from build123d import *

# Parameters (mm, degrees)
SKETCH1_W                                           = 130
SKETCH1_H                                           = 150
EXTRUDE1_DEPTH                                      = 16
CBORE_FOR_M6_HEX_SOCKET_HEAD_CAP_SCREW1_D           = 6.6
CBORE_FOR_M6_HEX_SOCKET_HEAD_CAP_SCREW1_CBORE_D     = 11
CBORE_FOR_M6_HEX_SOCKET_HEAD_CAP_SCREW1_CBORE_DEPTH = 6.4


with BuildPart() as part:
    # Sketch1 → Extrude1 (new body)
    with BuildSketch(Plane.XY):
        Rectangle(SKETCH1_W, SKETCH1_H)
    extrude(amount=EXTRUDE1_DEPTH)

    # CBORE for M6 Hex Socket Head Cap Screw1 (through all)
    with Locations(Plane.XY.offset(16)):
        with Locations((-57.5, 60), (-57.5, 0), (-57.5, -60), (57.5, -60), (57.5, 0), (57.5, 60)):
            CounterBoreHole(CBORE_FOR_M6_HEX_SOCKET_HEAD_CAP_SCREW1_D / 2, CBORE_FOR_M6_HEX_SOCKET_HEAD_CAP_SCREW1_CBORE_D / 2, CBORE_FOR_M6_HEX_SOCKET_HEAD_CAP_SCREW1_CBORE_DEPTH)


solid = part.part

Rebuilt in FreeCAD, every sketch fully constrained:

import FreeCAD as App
import Part
import Sketcher

V = App.Vector

doc = App.newDocument("Part")
body = doc.addObject("PartDesign::Body", "Body")

sketch1 = body.newObject("Sketcher::SketchObject", "Sketch")
sketch1.AttachmentSupport = (doc.getObject("XY_Plane"), [""])
sketch1.MapMode = "FlatFace"
sketch1.addGeometry([
    Part.LineSegment(V(-65, 75, 0), V(-65, -75, 0)),
    Part.LineSegment(V(-65, -75, 0), V(65, -75, 0)),
    Part.LineSegment(V(65, -75, 0), V(65, 75, 0)),
    Part.LineSegment(V(65, 75, 0), V(-65, 75, 0)),
], False)
sketch1.addConstraint([
    Sketcher.Constraint("Coincident", 0, 2, 1, 1),
    Sketcher.Constraint("Coincident", 1, 2, 2, 1),
    Sketcher.Constraint("Coincident", 2, 2, 3, 1),
    Sketcher.Constraint("Coincident", 3, 2, 0, 1),
    Sketcher.Constraint("Vertical", 0),
    Sketcher.Constraint("Horizontal", 1),
    Sketcher.Constraint("Vertical", 2),
    Sketcher.Constraint("Horizontal", 3),
    Sketcher.Constraint("Symmetric", 0, 2, 2, 2, -1, 1),
    Sketcher.Constraint("DistanceX", 1, 1, 1, 2, 130.0),
    Sketcher.Constraint("DistanceY", 0, 2, 0, 1, 150.0),
])
pad1 = body.newObject("PartDesign::Pad", "Pad")
pad1.Profile = sketch1
pad1.Length = 16

sketch2 = body.newObject("Sketcher::SketchObject", "Sketch001")
sketch2.AttachmentSupport = (doc.getObject("XY_Plane"), [""])
sketch2.MapMode = "FlatFace"
sketch2.AttachmentOffset = App.Placement(V(0, 0, 16), App.Rotation())
sketch2.addGeometry([
    Part.Circle(V(-57.5, 60, 0), V(0, 0, 1), 3.3),
    Part.Circle(V(-57.5, 0, 0), V(0, 0, 1), 3.3),
    Part.Circle(V(-57.5, -60, 0), V(0, 0, 1), 3.3),
    Part.Circle(V(57.5, -60, 0), V(0, 0, 1), 3.3),
    Part.Circle(V(57.5, 0, 0), V(0, 0, 1), 3.3),
    Part.Circle(V(57.5, 60, 0), V(0, 0, 1), 3.3),
], False)
sketch2.addConstraint([
    Sketcher.Constraint("Equal", 0, 1),
    Sketcher.Constraint("Equal", 1, 2),
    Sketcher.Constraint("Equal", 2, 3),
    Sketcher.Constraint("Equal", 3, 4),
    Sketcher.Constraint("Equal", 4, 5),
    Sketcher.Constraint("Symmetric", 0, 3, 3, 3, -1, 1),
    Sketcher.Constraint("Symmetric", 1, 3, 4, 3, -1, 1),
    Sketcher.Constraint("Symmetric", 2, 3, 5, 3, -1, 1),
    Sketcher.Constraint("Symmetric", 2, 3, 3, 3, -2),
    Sketcher.Constraint("PointOnObject", 1, 3, -1),
    Sketcher.Constraint("Vertical", 0, 3, 1, 3),
    Sketcher.Constraint("Diameter", 0, 6.6),
    Sketcher.Constraint("DistanceY", -1, 1, 0, 3, 60.0),
    Sketcher.Constraint("DistanceX", 2, 3, 3, 3, 115.0),
])
doc.recompute()
hole = body.newObject("PartDesign::Hole", "Hole")
hole.Profile = sketch2
hole.ThreadType = "None"
hole.Diameter = 6.6
hole.DepthType = "ThroughAll"
hole.HoleCutType = "Counterbore"
hole.HoleCutDiameter = 11
hole.HoleCutDepth = 6.4

doc.recompute()
